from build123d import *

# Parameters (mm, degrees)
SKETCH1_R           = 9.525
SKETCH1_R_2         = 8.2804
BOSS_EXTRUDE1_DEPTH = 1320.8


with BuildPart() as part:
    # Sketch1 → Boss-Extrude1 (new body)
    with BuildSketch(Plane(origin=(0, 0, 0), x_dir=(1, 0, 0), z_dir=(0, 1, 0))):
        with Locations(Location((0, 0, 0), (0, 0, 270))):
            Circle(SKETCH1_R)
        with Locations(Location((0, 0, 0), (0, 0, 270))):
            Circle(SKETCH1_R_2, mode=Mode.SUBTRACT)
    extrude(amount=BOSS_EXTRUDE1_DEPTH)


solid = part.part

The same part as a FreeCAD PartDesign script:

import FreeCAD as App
import Part
import Sketcher

V = App.Vector
Q = App.Units.Quantity

doc = App.newDocument("Part")
body = doc.addObject("PartDesign::Body", "Body")

sketch1 = body.newObject("Sketcher::SketchObject", "Sketch")
sketch1.AttachmentSupport = (doc.getObject("XZ_Plane"), [""])
sketch1.MapMode = "FlatFace"
sketch1.addGeometry([
    Part.Circle(V(0, 0, 0), V(0, 0, 1), 10),
    Part.Circle(V(0, 0, 0), V(0, 0, 1), 8),
], False)
sketch1.addConstraint([
    Sketcher.Constraint("Coincident", 0, 3, -1, 1),
    Sketcher.Constraint("Coincident", 1, 3, -1, 1),
    Sketcher.Constraint("Diameter", 0, Q("0.75 in")),
    Sketcher.Constraint("Diameter", 1, Q("0.652 in")),
])
pad1 = body.newObject("PartDesign::Pad", "Pad")
pad1.Profile = sketch1
pad1.Length = Q("52 in")
pad1.Reversed = True

doc.recompute()
